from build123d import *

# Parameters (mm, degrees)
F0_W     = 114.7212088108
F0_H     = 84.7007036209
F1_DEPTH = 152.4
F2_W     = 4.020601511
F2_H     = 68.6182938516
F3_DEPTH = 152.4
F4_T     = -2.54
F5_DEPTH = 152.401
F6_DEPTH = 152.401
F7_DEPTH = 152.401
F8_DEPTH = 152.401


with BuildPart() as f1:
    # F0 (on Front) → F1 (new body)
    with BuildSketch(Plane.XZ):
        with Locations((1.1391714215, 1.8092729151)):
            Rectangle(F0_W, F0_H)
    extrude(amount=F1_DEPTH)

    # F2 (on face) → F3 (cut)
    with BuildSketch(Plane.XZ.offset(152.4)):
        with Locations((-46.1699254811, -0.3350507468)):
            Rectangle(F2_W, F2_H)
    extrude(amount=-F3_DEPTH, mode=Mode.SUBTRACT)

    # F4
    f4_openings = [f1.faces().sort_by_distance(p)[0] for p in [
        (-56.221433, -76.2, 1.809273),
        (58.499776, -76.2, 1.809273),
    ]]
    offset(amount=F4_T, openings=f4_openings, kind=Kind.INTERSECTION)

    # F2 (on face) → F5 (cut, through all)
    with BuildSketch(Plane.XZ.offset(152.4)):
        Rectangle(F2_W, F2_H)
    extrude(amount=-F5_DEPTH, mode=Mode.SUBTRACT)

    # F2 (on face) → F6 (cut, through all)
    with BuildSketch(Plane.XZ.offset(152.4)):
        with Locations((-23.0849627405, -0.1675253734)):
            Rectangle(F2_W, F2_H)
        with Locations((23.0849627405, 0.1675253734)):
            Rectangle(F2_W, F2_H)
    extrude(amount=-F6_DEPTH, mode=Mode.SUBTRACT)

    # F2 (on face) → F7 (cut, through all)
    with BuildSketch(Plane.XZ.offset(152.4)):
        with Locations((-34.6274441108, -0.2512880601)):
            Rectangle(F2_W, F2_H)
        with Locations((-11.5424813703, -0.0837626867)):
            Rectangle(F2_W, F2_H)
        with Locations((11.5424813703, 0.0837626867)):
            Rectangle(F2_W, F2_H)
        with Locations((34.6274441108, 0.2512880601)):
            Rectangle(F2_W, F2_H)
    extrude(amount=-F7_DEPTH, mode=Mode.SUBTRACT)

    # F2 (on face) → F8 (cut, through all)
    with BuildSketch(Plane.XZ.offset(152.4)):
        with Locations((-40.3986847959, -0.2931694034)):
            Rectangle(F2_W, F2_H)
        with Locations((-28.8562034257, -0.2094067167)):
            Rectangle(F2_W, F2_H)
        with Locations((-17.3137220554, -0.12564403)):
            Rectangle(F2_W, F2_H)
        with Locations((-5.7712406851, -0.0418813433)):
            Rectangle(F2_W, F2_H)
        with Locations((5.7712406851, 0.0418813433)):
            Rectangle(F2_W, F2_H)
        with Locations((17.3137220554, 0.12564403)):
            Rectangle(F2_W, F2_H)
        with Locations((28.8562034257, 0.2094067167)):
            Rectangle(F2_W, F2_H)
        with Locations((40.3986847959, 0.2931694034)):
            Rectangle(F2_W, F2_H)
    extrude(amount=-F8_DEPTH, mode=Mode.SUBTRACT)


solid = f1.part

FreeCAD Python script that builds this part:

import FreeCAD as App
import Part
import Sketcher
from FreeCAD import Vector
Q = App.Units.Quantity


def faces_at(feature, points):
    """Names of the faces that lie closest to the given points."""
    faces = feature.Shape.Faces
    near = lambda p: min(range(len(faces)), key=lambda i: faces[i].distToShape(Part.Vertex(*p))[0])
    return sorted({f"Face{near(p) + 1}" for p in points})

doc = App.newDocument("Part")
body = doc.addObject("PartDesign::Body", "Body")

sketch1 = body.newObject("Sketcher::SketchObject", "Sketch")
sketch1.AttachmentSupport = (doc.getObject("XZ_Plane"), [""])
sketch1.MapMode = "FlatFace"
sketch1.addGeometry(Part.LineSegment(Vector(-56, 44, 0), Vector(-56, -41, 0)), False)
sketch1.addGeometry(Part.LineSegment(Vector(-56, -41, 0), Vector(58, -41, 0)), False)
sketch1.addGeometry(Part.LineSegment(Vector(58, -41, 0), Vector(58, 44, 0)), False)
sketch1.addGeometry(Part.LineSegment(Vector(58, 44, 0), Vector(-56, 44, 0)), False)
sketch1.addConstraint(Sketcher.Constraint("Coincident", 0, 2, 1, 1))
sketch1.addConstraint(Sketcher.Constraint("Coincident", 1, 2, 2, 1))
sketch1.addConstraint(Sketcher.Constraint("Coincident", 2, 2, 3, 1))
sketch1.addConstraint(Sketcher.Constraint("Coincident", 3, 2, 0, 1))
sketch1.addConstraint(Sketcher.Constraint("Vertical", 0))
sketch1.addConstraint(Sketcher.Constraint("Horizontal", 1))
sketch1.addConstraint(Sketcher.Constraint("Vertical", 2))
sketch1.addConstraint(Sketcher.Constraint("Horizontal", 3))
sketch1.addConstraint(Sketcher.Constraint("DistanceX", 1, 1, 1, 2, 114.721209))
sketch1.addConstraint(Sketcher.Constraint("DistanceY", 0, 2, 0, 1, 84.700704))
sketch1.addConstraint(Sketcher.Constraint("DistanceY", 0, 2, -1, 1, 40.541079))
sketch1.addConstraint(Sketcher.Constraint("DistanceX", 0, 2, -1, 1, 56.221433))
pad1 = body.newObject("PartDesign::Pad", "Pad")
pad1.Profile = sketch1
pad1.Length = Q("6 in")

sketch2 = body.newObject("Sketcher::SketchObject", "Sketch001")
sketch2.AttachmentSupport = (doc.getObject("XZ_Plane"), [""])
sketch2.MapMode = "FlatFace"
sketch2.AttachmentOffset = App.Placement(Vector(0, 0, 6 * 25.4), App.Rotation())
sketch2.addGeometry(Part.LineSegment(Vector(-48.2, 34, 0), Vector(-48.2, -34.6, 0)), False)
sketch2.addGeometry(Part.LineSegment(Vector(-48.2, -34.6, 0), Vector(-44.2, -34.6, 0)), False)
sketch2.addGeometry(Part.LineSegment(Vector(-44.2, -34.6, 0), Vector(-44.2, 34, 0)), False)
sketch2.addGeometry(Part.LineSegment(Vector(-44.2, 34, 0), Vector(-48.2, 34, 0)), False)
sketch2.addConstraint(Sketcher.Constraint("Coincident", 0, 2, 1, 1))
sketch2.addConstraint(Sketcher.Constraint("Coincident", 1, 2, 2, 1))
sketch2.addConstraint(Sketcher.Constraint("Coincident", 2, 2, 3, 1))
sketch2.addConstraint(Sketcher.Constraint("Coincident", 3, 2, 0, 1))
sketch2.addConstraint(Sketcher.Constraint("Vertical", 0))
sketch2.addConstraint(Sketcher.Constraint("Horizontal", 1))
sketch2.addConstraint(Sketcher.Constraint("Vertical", 2))
sketch2.addConstraint(Sketcher.Constraint("Horizontal", 3))
sketch2.addConstraint(Sketcher.Constraint("DistanceX", 1, 1, 1, 2, 4.020602))
sketch2.addConstraint(Sketcher.Constraint("DistanceY", 0, 2, 0, 1, 68.618294))
sketch2.addConstraint(Sketcher.Constraint("DistanceX", 0, 2, -1, 1, 48.180226))
sketch2.addConstraint(Sketcher.Constraint("DistanceY", 0, 2, -1, 1, 34.644198))
pocket1 = body.newObject("PartDesign::Pocket", "Pocket")
pocket1.Profile = sketch2
pocket1.Length = Q("6 in")
doc.recompute()

thickness = body.newObject("PartDesign::Thickness", "Thickness")
thickness.Base = (pocket1, faces_at(pocket1, [(-56.221, -76.2, 1.809), (58.5, -76.2, 1.809)]))
thickness.Value = Q("0.1 in")
thickness.Reversed = True
thickness.Join = "Intersection"

sketch3 = body.newObject("Sketcher::SketchObject", "Sketch002")
sketch3.AttachmentSupport = (doc.getObject("XZ_Plane"), [""])
sketch3.MapMode = "FlatFace"
sketch3.AttachmentOffset = App.Placement(Vector(0, 0, 6 * 25.4), App.Rotation())
sketch3.addGeometry(Part.LineSegment(Vector(-2, 34.3, 0), Vector(-2, -34.3, 0)), False)
sketch3.addGeometry(Part.LineSegment(Vector(-2, -34.3, 0), Vector(2, -34.3, 0)), False)
sketch3.addGeometry(Part.LineSegment(Vector(2, -34.3, 0), Vector(2, 34.3, 0)), False)
sketch3.addGeometry(Part.LineSegment(Vector(2, 34.3, 0), Vector(-2, 34.3, 0)), False)
sketch3.addConstraint(Sketcher.Constraint("Coincident", 0, 2, 1, 1))
sketch3.addConstraint(Sketcher.Constraint("Coincident", 1, 2, 2, 1))
sketch3.addConstraint(Sketcher.Constraint("Coincident", 2, 2, 3, 1))
sketch3.addConstraint(Sketcher.Constraint("Coincident", 3, 2, 0, 1))
sketch3.addConstraint(Sketcher.Constraint("Vertical", 0))
sketch3.addConstraint(Sketcher.Constraint("Horizontal", 1))
sketch3.addConstraint(Sketcher.Constraint("Vertical", 2))
sketch3.addConstraint(Sketcher.Constraint("Horizontal", 3))
sketch3.addConstraint(Sketcher.Constraint("Symmetric", 0, 2, 2, 2, -1, 1))
sketch3.addConstraint(Sketcher.Constraint("DistanceX", 1, 1, 1, 2, 4.020602))
sketch3.addConstraint(Sketcher.Constraint("DistanceY", 0, 2, 0, 1, 68.618294))
pocket2 = body.newObject("PartDesign::Pocket", "Pocket001")
pocket2.Profile = sketch3
pocket2.Type = "ThroughAll"

sketch4 = body.newObject("Sketcher::SketchObject", "Sketch003")
sketch4.AttachmentSupport = (doc.getObject("XZ_Plane"), [""])
sketch4.MapMode = "FlatFace"
sketch4.AttachmentOffset = App.Placement(Vector(0, 0, 6 * 25.4), App.Rotation())
sketch4.addGeometry(Part.LineSegment(Vector(-25.1, 34.1, 0), Vector(-25.1, -34.5, 0)), False)
sketch4.addGeometry(Part.LineSegment(Vector(-25.1, -34.5, 0), Vector(-21.1, -34.5, 0)), False)
sketch4.addGeometry(Part.LineSegment(Vector(-21.1, -34.5, 0), Vector(-21.1, 34.1, 0)), False)
sketch4.addGeometry(Part.LineSegment(Vector(-21.1, 34.1, 0), Vector(-25.1, 34.1, 0)), False)
sketch4.addGeometry(Part.LineSegment(Vector(21.1, 34.5, 0), Vector(21.1, -34.1, 0)), False)
sketch4.addGeometry(Part.LineSegment(Vector(21.1, -34.1, 0), Vector(25.1, -34.1, 0)), False)
sketch4.addGeometry(Part.LineSegment(Vector(25.1, -34.1, 0), Vector(25.1, 34.5, 0)), False)
sketch4.addGeometry(Part.LineSegment(Vector(25.1, 34.5, 0), Vector(21.1, 34.5, 0)), False)
sketch4.addConstraint(Sketcher.Constraint("Coincident", 0, 2, 1, 1))
sketch4.addConstraint(Sketcher.Constraint("Coincident", 1, 2, 2, 1))
sketch4.addConstraint(Sketcher.Constraint("Coincident", 2, 2, 3, 1))
sketch4.addConstraint(Sketcher.Constraint("Coincident", 3, 2, 0, 1))
sketch4.addConstraint(Sketcher.Constraint("Coincident", 4, 2, 5, 1))
sketch4.addConstraint(Sketcher.Constraint("Coincident", 5, 2, 6, 1))
sketch4.addConstraint(Sketcher.Constraint("Coincident", 6, 2, 7, 1))
sketch4.addConstraint(Sketcher.Constraint("Coincident", 7, 2, 4, 1))
sketch4.addConstraint(Sketcher.Constraint("Vertical", 0))
sketch4.addConstraint(Sketcher.Constraint("Horizontal", 1))
sketch4.addConstraint(Sketcher.Constraint("Vertical", 2))
sketch4.addConstraint(Sketcher.Constraint("Horizontal", 3))
sketch4.addConstraint(Sketcher.Constraint("Vertical", 4))
sketch4.addConstraint(Sketcher.Constraint("Horizontal", 5))
sketch4.addConstraint(Sketcher.Constraint("Vertical", 6))
sketch4.addConstraint(Sketcher.Constraint("Horizontal", 7))
sketch4.addConstraint(Sketcher.Constraint("Symmetric", 2, 2, 4, 2, -1, 1))
sketch4.addConstraint(Sketcher.Constraint("Symmetric", 0, 2, 6, 2, -1, 1))
sketch4.addConstraint(Sketcher.Constraint("DistanceX", 1, 1, 1, 2, 4.020602))
sketch4.addConstraint(Sketcher.Constraint("DistanceY", 0, 2, 0, 1, 68.618294))
sketch4.addConstraint(Sketcher.Constraint("DistanceX", 1, 2, -1, 1, 21.074662))
sketch4.addConstraint(Sketcher.Constraint("DistanceY", -1, 1, 2, 2, 34.141622))
pocket3 = body.newObject("PartDesign::Pocket", "Pocket002")
pocket3.Profile = sketch4
pocket3.Type = "ThroughAll"

sketch5 = body.newObject("Sketcher::SketchObject", "Sketch004")
sketch5.AttachmentSupport = (doc.getObject("XZ_Plane"), [""])
sketch5.MapMode = "FlatFace"
sketch5.AttachmentOffset = App.Placement(Vector(0, 0, 6 * 25.4), App.Rotation())
sketch5.addGeometry(Part.LineSegment(Vector(-36.6, 34.1, 0), Vector(-36.6, -34.6, 0)), False)
sketch5.addGeometry(Part.LineSegment(Vector(-36.6, -34.6, 0), Vector(-32.6, -34.6, 0)), False)
sketch5.addGeometry(Part.LineSegment(Vector(-32.6, -34.6, 0), Vector(-32.6, 34.1, 0)), False)
sketch5.addGeometry(Part.LineSegment(Vector(-32.6, 34.1, 0), Vector(-36.6, 34.1, 0)), False)
sketch5.addGeometry(Part.LineSegment(Vector(-13.6, 34.2, 0), Vector(-13.6, -34.4, 0)), False)
sketch5.addGeometry(Part.LineSegment(Vector(-13.6, -34.4, 0), Vector(-9.5, -34.4, 0)), False)
sketch5.addGeometry(Part.LineSegment(Vector(-9.5, -34.4, 0), Vector(-9.5, 34.2, 0)), False)
sketch5.addGeometry(Part.LineSegment(Vector(-9.5, 34.2, 0), Vector(-13.6, 34.2, 0)), False)
sketch5.addGeometry(Part.LineSegment(Vector(9.5, 34.4, 0), Vector(9.5, -34.2, 0)), False)
sketch5.addGeometry(Part.LineSegment(Vector(9.5, -34.2, 0), Vector(13.6, -34.2, 0)), False)
sketch5.addGeometry(Part.LineSegment(Vector(13.6, -34.2, 0), Vector(13.6, 34.4, 0)), False)
sketch5.addGeometry(Part.LineSegment(Vector(13.6, 34.4, 0), Vector(9.5, 34.4, 0)), False)
sketch5.addGeometry(Part.LineSegment(Vector(32.6, 34.6, 0), Vector(32.6, -34.1, 0)), False)
sketch5.addGeometry(Part.LineSegment(Vector(32.6, -34.1, 0), Vector(36.6, -34.1, 0)), False)
sketch5.addGeometry(Part.LineSegment(Vector(36.6, -34.1, 0), Vector(36.6, 34.6, 0)), False)
sketch5.addGeometry(Part.LineSegment(Vector(36.6, 34.6, 0), Vector(32.6, 34.6, 0)), False)
sketch5.addConstraint(Sketcher.Constraint("Coincident", 0, 2, 1, 1))
sketch5.addConstraint(Sketcher.Constraint("Coincident", 1, 2, 2, 1))
sketch5.addConstraint(Sketcher.Constraint("Coincident", 2, 2, 3, 1))
sketch5.addConstraint(Sketcher.Constraint("Coincident", 3, 2, 0, 1))
sketch5.addConstraint(Sketcher.Constraint("Coincident", 4, 2, 5, 1))
sketch5.addConstraint(Sketcher.Constraint("Coincident", 5, 2, 6, 1))
sketch5.addConstraint(Sketcher.Constraint("Coincident", 6, 2, 7, 1))
sketch5.addConstraint(Sketcher.Constraint("Coincident", 7, 2, 4, 1))
sketch5.addConstraint(Sketcher.Constraint("Coincident", 8, 2, 9, 1))
sketch5.addConstraint(Sketcher.Constraint("Coincident", 9, 2, 10, 1))
sketch5.addConstraint(Sketcher.Constraint("Coincident", 10, 2, 11, 1))
sketch5.addConstraint(Sketcher.Constraint("Coincident", 11, 2, 8, 1))
sketch5.addConstraint(Sketcher.Constraint("Coincident", 12, 2, 13, 1))
sketch5.addConstraint(Sketcher.Constraint("Coincident", 13, 2, 14, 1))
sketch5.addConstraint(Sketcher.Constraint("Coincident", 14, 2, 15, 1))
sketch5.addConstraint(Sketcher.Constraint("Coincident", 15, 2, 12, 1))
sketch5.addConstraint(Sketcher.Constraint("Vertical", 0))
sketch5.addConstraint(Sketcher.Constraint("Horizontal", 1))
sketch5.addConstraint(Sketcher.Constraint("Vertical", 2))
sketch5.addConstraint(Sketcher.Constraint("Horizontal", 3))
sketch5.addConstraint(Sketcher.Constraint("Vertical", 4))
sketch5.addConstraint(Sketcher.Constraint("Horizontal", 5))
sketch5.addConstraint(Sketcher.Constraint("Vertical", 6))
sketch5.addConstraint(Sketcher.Constraint("Horizontal", 7))
sketch5.addConstraint(Sketcher.Constraint("Vertical", 8))
sketch5.addConstraint(Sketcher.Constraint("Horizontal", 9))
sketch5.addConstraint(Sketcher.Constraint("Vertical", 10))
sketch5.addConstraint(Sketcher.Constraint("Horizontal", 11))
sketch5.addConstraint(Sketcher.Constraint("Vertical", 12))
sketch5.addConstraint(Sketcher.Constraint("Horizontal", 13))
sketch5.addConstraint(Sketcher.Constraint("Vertical", 14))
sketch5.addConstraint(Sketcher.Constraint("Horizontal", 15))
sketch5.addConstraint(Sketcher.Constraint("Symmetric", 6, 2, 8, 2, -1, 1))
sketch5.addConstraint(Sketcher.Constraint("Symmetric", 4, 2, 10, 2, -1, 1))
sketch5.addConstraint(Sketcher.Constraint("Symmetric", 2, 2, 12, 2, -1, 1))
sketch5.addConstraint(Sketcher.Constraint("Symmetric", 0, 2, 14, 2, -1, 1))
sketch5.addConstraint(Sketcher.Constraint("Equal", 3, 5))
sketch5.addConstraint(Sketcher.Constraint("Equal", 2, 4))
sketch5.addConstraint(Sketcher.Constraint("DistanceX", 1, 1, 1, 2, 4.020602))
sketch5.addConstraint(Sketcher.Constraint("DistanceY", 0, 2, 0, 1, 68.618294))
sketch5.addConstraint(Sketcher.Constraint("DistanceY", -1, 1, 2, 2, 34.057859))
sketch5.addConstraint(Sketcher.Constraint("DistanceY", 4, 2, -1, 1, 34.39291))
sketch5.addConstraint(Sketcher.Constraint("DistanceX", 5, 2, -1, 1, 9.532181))
sketch5.addConstraint(Sketcher.Constraint("DistanceX", 1, 2, 4, 2, 19.064361))
pocket4 = body.newObject("PartDesign::Pocket", "Pocket003")
pocket4.Profile = sketch5
pocket4.Type = "ThroughAll"

sketch6 = body.newObject("Sketcher::SketchObject", "Sketch005")
sketch6.AttachmentSupport = (doc.getObject("XZ_Plane"), [""])
sketch6.MapMode = "FlatFace"
sketch6.AttachmentOffset = App.Placement(Vector(0, 0, 6 * 25.4), App.Rotation())
sketch6.addGeometry(Part.LineSegment(Vector(-42.4, 34, 0), Vector(-42.4, -34.6, 0)), False)
sketch6.addGeometry(Part.LineSegment(Vector(-42.4, -34.6, 0), Vector(-38.4, -34.6, 0)), False)
sketch6.addGeometry(Part.LineSegment(Vector(-38.4, -34.6, 0), Vector(-38.4, 34, 0)), False)
sketch6.addGeometry(Part.LineSegment(Vector(-38.4, 34, 0), Vector(-42.4, 34, 0)), False)
sketch6.addGeometry(Part.LineSegment(Vector(-30.9, 34.1, 0), Vector(-30.9, -34.5, 0)), False)
sketch6.addGeometry(Part.LineSegment(Vector(-30.9, -34.5, 0), Vector(-26.8, -34.5, 0)), False)
sketch6.addGeometry(Part.LineSegment(Vector(-26.8, -34.5, 0), Vector(-26.8, 34.1, 0)), False)
sketch6.addGeometry(Part.LineSegment(Vector(-26.8, 34.1, 0), Vector(-30.9, 34.1, 0)), False)
sketch6.addGeometry(Part.LineSegment(Vector(-19.3, 34.2, 0), Vector(-19.3, -34.4, 0)), False)
sketch6.addGeometry(Part.LineSegment(Vector(-19.3, -34.4, 0), Vector(-15.3, -34.4, 0)), False)
sketch6.addGeometry(Part.LineSegment(Vector(-15.3, -34.4, 0), Vector(-15.3, 34.2, 0)), False)
sketch6.addGeometry(Part.LineSegment(Vector(-15.3, 34.2, 0), Vector(-19.3, 34.2, 0)), False)
sketch6.addGeometry(Part.LineSegment(Vector(-7.8, 34.3, 0), Vector(-7.8, -34.4, 0)), False)
sketch6.addGeometry(Part.LineSegment(Vector(-7.8, -34.4, 0), Vector(-3.8, -34.4, 0)), False)
sketch6.addGeometry(Part.LineSegment(Vector(-3.8, -34.4, 0), Vector(-3.8, 34.3, 0)), False)
sketch6.addGeometry(Part.LineSegment(Vector(-3.8, 34.3, 0), Vector(-7.8, 34.3, 0)), False)
sketch6.addGeometry(Part.LineSegment(Vector(3.8, 34.4, 0), Vector(3.8, -34.3, 0)), False)
sketch6.addGeometry(Part.LineSegment(Vector(3.8, -34.3, 0), Vector(7.8, -34.3, 0)), False)
sketch6.addGeometry(Part.LineSegment(Vector(7.8, -34.3, 0), Vector(7.8, 34.4, 0)), False)
sketch6.addGeometry(Part.LineSegment(Vector(7.8, 34.4, 0), Vector(3.8, 34.4, 0)), False)
sketch6.addGeometry(Part.LineSegment(Vector(15.3, 34.4, 0), Vector(15.3, -34.2, 0)), False)
sketch6.addGeometry(Part.LineSegment(Vector(15.3, -34.2, 0), Vector(19.3, -34.2, 0)), False)
sketch6.addGeometry(Part.LineSegment(Vector(19.3, -34.2, 0), Vector(19.3, 34.4, 0)), False)
sketch6.addGeometry(Part.LineSegment(Vector(19.3, 34.4, 0), Vector(15.3, 34.4, 0)), False)
sketch6.addGeometry(Part.LineSegment(Vector(26.8, 34.5, 0), Vector(26.8, -34.1, 0)), False)
sketch6.addGeometry(Part.LineSegment(Vector(26.8, -34.1, 0), Vector(30.9, -34.1, 0)), False)
sketch6.addGeometry(Part.LineSegment(Vector(30.9, -34.1, 0), Vector(30.9, 34.5, 0)), False)
sketch6.addGeometry(Part.LineSegment(Vector(30.9, 34.5, 0), Vector(26.8, 34.5, 0)), False)
sketch6.addGeometry(Part.LineSegment(Vector(38.4, 34.6, 0), Vector(38.4, -34, 0)), False)
sketch6.addGeometry(Part.LineSegment(Vector(38.4, -34, 0), Vector(42.4, -34, 0)), False)
sketch6.addGeometry(Part.LineSegment(Vector(42.4, -34, 0), Vector(42.4, 34.6, 0)), False)
sketch6.addGeometry(Part.LineSegment(Vector(42.4, 34.6, 0), Vector(38.4, 34.6, 0)), False)
sketch6.addConstraint(Sketcher.Constraint("Coincident", 0, 2, 1, 1))
sketch6.addConstraint(Sketcher.Constraint("Coincident", 1, 2, 2, 1))
sketch6.addConstraint(Sketcher.Constraint("Coincident", 2, 2, 3, 1))
sketch6.addConstraint(Sketcher.Constraint("Coincident", 3, 2, 0, 1))
sketch6.addConstraint(Sketcher.Constraint("Coincident", 4, 2, 5, 1))
sketch6.addConstraint(Sketcher.Constraint("Coincident", 5, 2, 6, 1))
sketch6.addConstraint(Sketcher.Constraint("Coincident", 6, 2, 7, 1))
sketch6.addConstraint(Sketcher.Constraint("Coincident", 7, 2, 4, 1))
sketch6.addConstraint(Sketcher.Constraint("Coincident", 8, 2, 9, 1))
sketch6.addConstraint(Sketcher.Constraint("Coincident", 9, 2, 10, 1))
sketch6.addConstraint(Sketcher.Constraint("Coincident", 10, 2, 11, 1))
sketch6.addConstraint(Sketcher.Constraint("Coincident", 11, 2, 8, 1))
sketch6.addConstraint(Sketcher.Constraint("Coincident", 12, 2, 13, 1))
sketch6.addConstraint(Sketcher.Constraint("Coincident", 13, 2, 14, 1))
sketch6.addConstraint(Sketcher.Constraint("Coincident", 14, 2, 15, 1))
sketch6.addConstraint(Sketcher.Constraint("Coincident", 15, 2, 12, 1))
sketch6.addConstraint(Sketcher.Constraint("Coincident", 16, 2, 17, 1))
sketch6.addConstraint(Sketcher.Constraint("Coincident", 17, 2, 18, 1))
sketch6.addConstraint(Sketcher.Constraint("Coincident", 18, 2, 19, 1))
sketch6.addConstraint(Sketcher.Constraint("Coincident", 19, 2, 16, 1))
sketch6.addConstraint(Sketcher.Constraint("Coincident", 20, 2, 21, 1))
sketch6.addConstraint(Sketcher.Constraint("Coincident", 21, 2, 22, 1))
sketch6.addConstraint(Sketcher.Constraint("Coincident", 22, 2, 23, 1))
sketch6.addConstraint(Sketcher.Constraint("Coincident", 23, 2, 20, 1))
sketch6.addConstraint(Sketcher.Constraint("Coincident", 24, 2, 25, 1))
sketch6.addConstraint(Sketcher.Constraint("Coincident", 25, 2, 26, 1))
sketch6.addConstraint(Sketcher.Constraint("Coincident", 26, 2, 27, 1))
sketch6.addConstraint(Sketcher.Constraint("Coincident", 27, 2, 24, 1))
sketch6.addConstraint(Sketcher.Constraint("Coincident", 28, 2, 29, 1))
sketch6.addConstraint(Sketcher.Constraint("Coincident", 29, 2, 30, 1))
sketch6.addConstraint(Sketcher.Constraint("Coincident", 30, 2, 31, 1))
sketch6.addConstraint(Sketcher.Constraint("Coincident", 31, 2, 28, 1))
sketch6.addConstraint(Sketcher.Constraint("Vertical", 0))
sketch6.addConstraint(Sketcher.Constraint("Horizontal", 1))
sketch6.addConstraint(Sketcher.Constraint("Vertical", 2))
sketch6.addConstraint(Sketcher.Constraint("Horizontal", 3))
sketch6.addConstraint(Sketcher.Constraint("Vertical", 4))
sketch6.addConstraint(Sketcher.Constraint("Horizontal", 5))
sketch6.addConstraint(Sketcher.Constraint("Vertical", 6))
sketch6.addConstraint(Sketcher.Constraint("Horizontal", 7))
sketch6.addConstraint(Sketcher.Constraint("Vertical", 8))
sketch6.addConstraint(Sketcher.Constraint("Horizontal", 9))
sketch6.addConstraint(Sketcher.Constraint("Vertical", 10))
sketch6.addConstraint(Sketcher.Constraint("Horizontal", 11))
sketch6.addConstraint(Sketcher.Constraint("Vertical", 12))
sketch6.addConstraint(Sketcher.Constraint("Horizontal", 13))
sketch6.addConstraint(Sketcher.Constraint("Vertical", 14))
sketch6.addConstraint(Sketcher.Constraint("Horizontal", 15))
sketch6.addConstraint(Sketcher.Constraint("Vertical", 16))
sketch6.addConstraint(Sketcher.Constraint("Horizontal", 17))
sketch6.addConstraint(Sketcher.Constraint("Vertical", 18))
sketch6.addConstraint(Sketcher.Constraint("Horizontal", 19))
sketch6.addConstraint(Sketcher.Constraint("Vertical", 20))
sketch6.addConstraint(Sketcher.Constraint("Horizontal", 21))
sketch6.addConstraint(Sketcher.Constraint("Vertical", 22))
sketch6.addConstraint(Sketcher.Constraint("Horizontal", 23))
sketch6.addConstraint(Sketcher.Constraint("Vertical", 24))
sketch6.addConstraint(Sketcher.Constraint("Horizontal", 25))
sketch6.addConstraint(Sketcher.Constraint("Vertical", 26))
sketch6.addConstraint(Sketcher.Constraint("Horizontal", 27))
sketch6.addConstraint(Sketcher.Constraint("Vertical", 28))
sketch6.addConstraint(Sketcher.Constraint("Horizontal", 29))
sketch6.addConstraint(Sketcher.Constraint("Vertical", 30))
sketch6.addConstraint(Sketcher.Constraint("Horizontal", 31))
sketch6.addConstraint(Sketcher.Constraint("Symmetric", 14, 2, 16, 2, -1, 1))
sketch6.addConstraint(Sketcher.Constraint("Symmetric", 12, 2, 18, 2, -1, 1))
sketch6.addConstraint(Sketcher.Constraint("Symmetric", 10, 2, 20, 2, -1, 1))
sketch6.addConstraint(Sketcher.Constraint("Symmetric", 8, 2, 22, 2, -1, 1))
sketch6.addConstraint(Sketcher.Constraint("Symmetric", 6, 2, 24, 2, -1, 1))
sketch6.addConstraint(Sketcher.Constraint("Symmetric", 4, 2, 26, 2, -1, 1))
sketch6.addConstraint(Sketcher.Constraint("Symmetric", 2, 2, 28, 2, -1, 1))
sketch6.addConstraint(Sketcher.Constraint("Symmetric", 0, 2, 30, 2, -1, 1))
sketch6.addConstraint(Sketcher.Constraint("Equal", 3, 5))
sketch6.addConstraint(Sketcher.Constraint("Equal", 7, 9))
sketch6.addConstraint(Sketcher.Constraint("Equal", 11, 13))
sketch6.addConstraint(Sketcher.Constraint("Equal", 2, 4))
sketch6.addConstraint(Sketcher.Constraint("Equal", 6, 8))
sketch6.addConstraint(Sketcher.Constraint("Equal", 10, 12))
sketch6.addConstraint(Sketcher.Constraint("DistanceX", 1, 1, 1, 2, 4.020602))
sketch6.addConstraint(Sketcher.Constraint("DistanceY", 0, 2, 0, 1, 68.618294))
sketch6.addConstraint(Sketcher.Constraint("DistanceY", -1, 1, 6, 2, 34.09974))
sketch6.addConstraint(Sketcher.Constraint("DistanceY", 8, 2, -1, 1, 34.434791))
sketch6.addConstraint(Sketcher.Constraint("DistanceX", 9, 2, -1, 1, 15.303421))
sketch6.addConstraint(Sketcher.Constraint("DistanceX", 12, 2, -1, 1, 7.781541))
sketch6.addConstraint(Sketcher.Constraint("DistanceY", 12, 2, -1, 1, 34.351028))
sketch6.addConstraint(Sketcher.Constraint("DistanceX", 1, 2, 4, 2, 7.52188))
sketch6.addConstraint(Sketcher.Constraint("DistanceY", 4, 2, 2, 2, 68.534531))
sketch6.addConstraint(Sketcher.Constraint("DistanceX", 5, 2, 8, 2, 7.52188))
pocket5 = body.newObject("PartDesign::Pocket", "Pocket004")
pocket5.Profile = sketch6
pocket5.Type = "ThroughAll"

doc.recompute()
